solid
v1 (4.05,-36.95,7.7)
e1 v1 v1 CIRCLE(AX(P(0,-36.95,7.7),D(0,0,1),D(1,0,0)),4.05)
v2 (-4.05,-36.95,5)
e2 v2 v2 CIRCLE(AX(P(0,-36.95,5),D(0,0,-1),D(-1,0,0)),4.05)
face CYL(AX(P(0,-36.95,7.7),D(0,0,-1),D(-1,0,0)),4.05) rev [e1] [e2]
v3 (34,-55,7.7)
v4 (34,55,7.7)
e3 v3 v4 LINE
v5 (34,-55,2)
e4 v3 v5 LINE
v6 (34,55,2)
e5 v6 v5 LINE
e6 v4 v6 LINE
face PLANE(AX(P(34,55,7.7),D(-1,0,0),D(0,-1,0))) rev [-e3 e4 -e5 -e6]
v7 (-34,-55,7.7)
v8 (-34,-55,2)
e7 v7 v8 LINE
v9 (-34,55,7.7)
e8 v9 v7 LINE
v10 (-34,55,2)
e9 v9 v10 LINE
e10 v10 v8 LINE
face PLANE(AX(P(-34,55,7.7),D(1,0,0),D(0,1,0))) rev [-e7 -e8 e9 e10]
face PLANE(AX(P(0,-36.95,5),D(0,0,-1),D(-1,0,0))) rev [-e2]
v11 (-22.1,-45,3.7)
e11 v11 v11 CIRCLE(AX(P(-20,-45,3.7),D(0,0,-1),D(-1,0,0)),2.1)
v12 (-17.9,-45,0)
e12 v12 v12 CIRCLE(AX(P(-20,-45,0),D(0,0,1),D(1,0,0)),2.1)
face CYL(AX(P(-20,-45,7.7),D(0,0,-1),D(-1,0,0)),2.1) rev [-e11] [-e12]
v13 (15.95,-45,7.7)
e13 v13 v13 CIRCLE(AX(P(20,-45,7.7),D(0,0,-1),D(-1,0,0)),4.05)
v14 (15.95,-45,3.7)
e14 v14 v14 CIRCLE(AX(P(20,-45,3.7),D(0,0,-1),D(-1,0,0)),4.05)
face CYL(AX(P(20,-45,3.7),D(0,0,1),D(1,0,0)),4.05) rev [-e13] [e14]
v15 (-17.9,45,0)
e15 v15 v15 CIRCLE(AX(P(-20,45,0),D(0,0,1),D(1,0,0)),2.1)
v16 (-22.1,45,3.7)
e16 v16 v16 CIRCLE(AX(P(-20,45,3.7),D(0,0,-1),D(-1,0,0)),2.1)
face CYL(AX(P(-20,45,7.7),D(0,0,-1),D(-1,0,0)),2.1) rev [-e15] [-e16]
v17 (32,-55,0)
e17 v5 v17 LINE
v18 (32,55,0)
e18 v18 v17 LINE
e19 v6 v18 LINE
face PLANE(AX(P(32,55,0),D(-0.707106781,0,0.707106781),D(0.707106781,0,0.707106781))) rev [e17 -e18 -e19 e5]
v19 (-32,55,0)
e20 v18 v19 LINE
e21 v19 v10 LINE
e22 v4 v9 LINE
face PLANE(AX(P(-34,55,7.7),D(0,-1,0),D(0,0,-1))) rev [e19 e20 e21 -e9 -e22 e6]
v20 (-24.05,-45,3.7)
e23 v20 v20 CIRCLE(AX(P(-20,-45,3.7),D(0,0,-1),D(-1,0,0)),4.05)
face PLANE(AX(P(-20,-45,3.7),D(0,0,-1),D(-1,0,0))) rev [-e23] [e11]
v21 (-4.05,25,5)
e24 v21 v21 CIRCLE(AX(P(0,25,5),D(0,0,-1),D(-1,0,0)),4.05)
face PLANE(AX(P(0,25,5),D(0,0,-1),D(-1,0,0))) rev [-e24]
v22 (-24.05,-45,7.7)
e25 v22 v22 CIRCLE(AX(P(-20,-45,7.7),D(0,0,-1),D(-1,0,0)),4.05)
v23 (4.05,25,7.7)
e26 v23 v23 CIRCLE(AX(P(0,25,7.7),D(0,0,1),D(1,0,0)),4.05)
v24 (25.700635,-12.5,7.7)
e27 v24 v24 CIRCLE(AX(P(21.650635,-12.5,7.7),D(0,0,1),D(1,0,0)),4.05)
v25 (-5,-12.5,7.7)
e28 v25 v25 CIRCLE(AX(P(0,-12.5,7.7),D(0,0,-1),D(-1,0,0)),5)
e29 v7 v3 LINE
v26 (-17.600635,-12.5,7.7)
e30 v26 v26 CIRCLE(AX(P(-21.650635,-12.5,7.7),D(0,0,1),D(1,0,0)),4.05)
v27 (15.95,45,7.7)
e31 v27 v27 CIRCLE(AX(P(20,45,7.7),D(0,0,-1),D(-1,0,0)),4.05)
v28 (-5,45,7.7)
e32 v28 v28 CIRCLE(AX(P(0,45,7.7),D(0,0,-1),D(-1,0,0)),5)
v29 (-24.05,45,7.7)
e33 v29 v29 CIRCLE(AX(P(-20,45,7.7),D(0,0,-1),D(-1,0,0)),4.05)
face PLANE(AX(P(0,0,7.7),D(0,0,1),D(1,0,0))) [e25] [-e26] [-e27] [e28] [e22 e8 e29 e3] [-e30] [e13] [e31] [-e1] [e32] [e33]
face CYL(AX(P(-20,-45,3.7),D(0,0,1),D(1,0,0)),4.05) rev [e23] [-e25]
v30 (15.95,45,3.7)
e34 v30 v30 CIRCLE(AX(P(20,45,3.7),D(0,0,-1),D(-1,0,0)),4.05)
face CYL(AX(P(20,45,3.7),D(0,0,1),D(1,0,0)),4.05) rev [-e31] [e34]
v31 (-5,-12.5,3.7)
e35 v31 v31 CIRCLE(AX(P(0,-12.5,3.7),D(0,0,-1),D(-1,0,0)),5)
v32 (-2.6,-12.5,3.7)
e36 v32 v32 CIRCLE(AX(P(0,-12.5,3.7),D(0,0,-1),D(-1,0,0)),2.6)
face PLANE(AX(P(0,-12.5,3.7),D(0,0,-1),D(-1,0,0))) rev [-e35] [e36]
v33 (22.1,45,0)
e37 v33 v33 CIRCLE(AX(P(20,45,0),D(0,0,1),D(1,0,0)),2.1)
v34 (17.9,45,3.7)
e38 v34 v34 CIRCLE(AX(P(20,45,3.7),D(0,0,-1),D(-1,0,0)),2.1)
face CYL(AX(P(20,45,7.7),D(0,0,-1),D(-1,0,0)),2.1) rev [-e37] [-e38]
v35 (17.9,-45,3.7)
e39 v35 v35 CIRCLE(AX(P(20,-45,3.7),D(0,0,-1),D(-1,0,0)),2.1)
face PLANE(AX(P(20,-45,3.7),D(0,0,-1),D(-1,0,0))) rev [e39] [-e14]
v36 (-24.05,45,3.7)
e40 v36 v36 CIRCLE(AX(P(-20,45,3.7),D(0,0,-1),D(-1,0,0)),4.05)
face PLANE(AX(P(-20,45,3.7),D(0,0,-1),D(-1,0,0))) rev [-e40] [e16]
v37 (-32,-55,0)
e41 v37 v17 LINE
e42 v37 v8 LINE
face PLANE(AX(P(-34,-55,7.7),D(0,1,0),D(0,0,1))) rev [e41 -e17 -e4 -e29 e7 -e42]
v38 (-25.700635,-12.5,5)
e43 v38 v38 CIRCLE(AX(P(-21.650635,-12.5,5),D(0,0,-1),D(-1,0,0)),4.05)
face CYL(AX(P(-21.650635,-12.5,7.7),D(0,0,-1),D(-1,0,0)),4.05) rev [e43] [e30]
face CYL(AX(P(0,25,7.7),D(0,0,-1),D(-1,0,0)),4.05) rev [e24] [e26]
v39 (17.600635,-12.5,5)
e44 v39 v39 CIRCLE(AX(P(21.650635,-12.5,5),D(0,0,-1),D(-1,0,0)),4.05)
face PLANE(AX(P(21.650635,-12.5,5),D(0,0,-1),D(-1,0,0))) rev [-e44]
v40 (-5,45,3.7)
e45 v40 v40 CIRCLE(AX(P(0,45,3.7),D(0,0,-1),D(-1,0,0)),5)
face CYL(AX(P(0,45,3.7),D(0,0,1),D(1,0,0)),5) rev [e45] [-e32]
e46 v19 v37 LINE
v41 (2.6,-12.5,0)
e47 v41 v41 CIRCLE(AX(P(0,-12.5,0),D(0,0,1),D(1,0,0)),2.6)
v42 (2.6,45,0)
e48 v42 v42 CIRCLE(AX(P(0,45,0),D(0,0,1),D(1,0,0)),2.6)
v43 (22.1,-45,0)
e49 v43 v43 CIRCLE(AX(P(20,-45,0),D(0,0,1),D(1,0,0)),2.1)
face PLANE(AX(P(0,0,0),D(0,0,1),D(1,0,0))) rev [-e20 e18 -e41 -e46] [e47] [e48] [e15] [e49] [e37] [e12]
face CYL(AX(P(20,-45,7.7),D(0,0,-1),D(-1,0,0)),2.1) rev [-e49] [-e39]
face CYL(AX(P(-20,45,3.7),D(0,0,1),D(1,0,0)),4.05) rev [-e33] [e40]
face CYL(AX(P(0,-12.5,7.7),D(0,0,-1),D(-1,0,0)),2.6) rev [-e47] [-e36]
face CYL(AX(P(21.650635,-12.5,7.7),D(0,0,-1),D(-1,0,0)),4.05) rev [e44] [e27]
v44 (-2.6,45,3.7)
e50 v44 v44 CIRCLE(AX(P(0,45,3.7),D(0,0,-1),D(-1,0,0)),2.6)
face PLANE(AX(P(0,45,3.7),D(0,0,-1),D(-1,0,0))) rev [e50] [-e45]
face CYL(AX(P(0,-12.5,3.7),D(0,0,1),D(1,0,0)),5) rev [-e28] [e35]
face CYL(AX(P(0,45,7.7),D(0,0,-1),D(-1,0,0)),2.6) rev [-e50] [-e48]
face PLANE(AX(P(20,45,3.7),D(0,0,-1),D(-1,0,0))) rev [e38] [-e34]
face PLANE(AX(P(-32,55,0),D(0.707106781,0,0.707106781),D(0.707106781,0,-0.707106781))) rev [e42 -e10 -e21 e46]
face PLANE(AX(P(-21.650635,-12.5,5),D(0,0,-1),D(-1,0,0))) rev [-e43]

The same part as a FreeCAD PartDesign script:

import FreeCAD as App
import Part
import Sketcher
Q = App.Units.Quantity

doc = App.newDocument("Part")
body = doc.addObject("PartDesign::Body", "Body")

sketch1 = body.newObject("Sketcher::SketchObject", "Sketch")
sketch1.AttachmentSupport = (doc.getObject("XY_Plane"), [""])
sketch1.MapMode = "FlatFace"
sketch1.addGeometry([
    Part.LineSegment(App.Vector(-34, 55, 0), App.Vector(-34, -55, 0)),
    Part.LineSegment(App.Vector(-34, -55, 0), App.Vector(34, -55, 0)),
    Part.LineSegment(App.Vector(34, -55, 0), App.Vector(34, 55, 0)),
    Part.LineSegment(App.Vector(34, 55, 0), App.Vector(-34, 55, 0)),
    Part.Circle(App.Vector(-20, -45, 0), App.Vector(0, 0, 1), 2.1),
    Part.Circle(App.Vector(-21.7, -12.5, 0), App.Vector(0, 0, 1), 4),
    Part.Circle(App.Vector(0, -37, 0), App.Vector(0, 0, 1), 4),
    Part.Circle(App.Vector(20, -45, 0), App.Vector(0, 0, 1), 2.1),
    Part.Circle(App.Vector(0, -12.5, 0), App.Vector(0, 0, 1), 2.6),
    Part.Circle(App.Vector(21.7, -12.5, 0), App.Vector(0, 0, 1), 4),
    Part.Circle(App.Vector(-20, 45, 0), App.Vector(0, 0, 1), 2.1),
    Part.Circle(App.Vector(0, 25, 0), App.Vector(0, 0, 1), 4),
    Part.Circle(App.Vector(0, 45, 0), App.Vector(0, 0, 1), 2.6),
    Part.Circle(App.Vector(20, 45, 0), App.Vector(0, 0, 1), 2.1),
], False)
sketch1.addConstraint([
    Sketcher.Constraint("Coincident", 0, 2, 1, 1),
    Sketcher.Constraint("Coincident", 1, 2, 2, 1),
    Sketcher.Constraint("Coincident", 2, 2, 3, 1),
    Sketcher.Constraint("Coincident", 3, 2, 0, 1),
    Sketcher.Constraint("Vertical", 0),
    Sketcher.Constraint("Horizontal", 1),
    Sketcher.Constraint("Vertical", 2),
    Sketcher.Constraint("Horizontal", 3),
    Sketcher.Constraint("Equal", 5, 6),
    Sketcher.Constraint("Equal", 4, 7),
    Sketcher.Constraint("Equal", 6, 9),
    Sketcher.Constraint("Equal", 7, 10),
    Sketcher.Constraint("Equal", 9, 11),
    Sketcher.Constraint("Equal", 8, 12),
    Sketcher.Constraint("Equal", 10, 13),
    Sketcher.Constraint("Symmetric", 7, 3, 10, 3, -1, 1),
    Sketcher.Constraint("Symmetric", 4, 3, 13, 3, -1, 1),
    Sketcher.Constraint("Symmetric", 0, 2, 2, 2, -1, 1),
    Sketcher.Constraint("Symmetric", 4, 3, 7, 3, -2),
    Sketcher.Constraint("Symmetric", 5, 3, 9, 3, -2),
    Sketcher.Constraint("PointOnObject", 6, 3, -2),
    Sketcher.Constraint("PointOnObject", 8, 3, -2),
    Sketcher.Constraint("PointOnObject", 11, 3, -2),
    Sketcher.Constraint("PointOnObject", 12, 3, -2),
    Sketcher.Constraint("Horizontal", 5, 3, 8, 3),
    Sketcher.Constraint("Horizontal", 10, 3, 12, 3),
    Sketcher.Constraint("Diameter", 4, Q("4.2 mm")),
    Sketcher.Constraint("Diameter", 5, Q("8.1 mm")),
    Sketcher.Constraint("Diameter", 8, Q("5.2 mm")),
    Sketcher.Constraint("DistanceX", 1, 1, 1, 2, Q("68 mm")),
    Sketcher.Constraint("DistanceY", 0, 2, 0, 1, Q("110 mm")),
    Sketcher.Constraint("DistanceX", 4, 3, -1, 1, Q("20 mm")),
    Sketcher.Constraint("DistanceY", 4, 3, -1, 1, Q("45 mm")),
    Sketcher.Constraint("DistanceY", -1, 1, 11, 3, Q("25 mm")),
    Sketcher.Constraint("DistanceY", 5, 3, -1, 1, Q("12.5 mm")),
    Sketcher.Constraint("DistanceY", 6, 3, -1, 1, Q("36.95 mm")),
    Sketcher.Constraint("DistanceX", 5, 3, 9, 3, Q("43.30127 mm")),
])
pad1 = body.newObject("PartDesign::Pad", "Pad")
pad1.Profile = sketch1
pad1.Length = 7.7

sketch2 = body.newObject("Sketcher::SketchObject", "Sketch001")
sketch2.AttachmentSupport = (doc.getObject("XY_Plane"), [""])
sketch2.MapMode = "FlatFace"
sketch2.addGeometry([
    Part.Circle(App.Vector(22, -12, 0), App.Vector(0, 0, 1), 6),
    Part.Circle(App.Vector(0, 25, 0), App.Vector(0, 0, 1), 7),
    Part.Circle(App.Vector(-22, -12, 0), App.Vector(0, 0, 1), 8),
    Part.Circle(App.Vector(0, -37, 0), App.Vector(0, 0, 1), 11),
], False)
sketch2.addConstraint([
    Sketcher.Constraint("Symmetric", 0, 3, 2, 3, -2),
    Sketcher.Constraint("PointOnObject", 1, 3, -2),
    Sketcher.Constraint("PointOnObject", 3, 3, -2),
    Sketcher.Constraint("DistanceY", -1, 1, 1, 3, Q("25 mm")),
    Sketcher.Constraint("DistanceY", 0, 3, -1, 1, Q("12.5 mm")),
    Sketcher.Constraint("Diameter", 2, Q("16.228082 mm")),
    Sketcher.Constraint("DistanceY", 3, 3, -1, 1, Q("36.95 mm")),
    Sketcher.Constraint("Diameter", 0, Q("12.609266 mm")),
    Sketcher.Constraint("Diameter", 1, Q("14.668667 mm")),
    Sketcher.Constraint("Diameter", 3, Q("22.147313 mm")),
    Sketcher.Constraint("DistanceX", 2, 3, 0, 3, Q("43.30127 mm")),
])
pad2 = body.newObject("PartDesign::Pad", "Pad001")
pad2.Profile = sketch2
pad2.Length = 5

sketch3 = body.newObject("Sketcher::SketchObject", "Sketch002")
sketch3.AttachmentSupport = (doc.getObject("XY_Plane"), [""])
sketch3.MapMode = "FlatFace"
sketch3.AttachmentOffset = App.Placement(App.Vector(0, 0, 7.7), App.Rotation())
sketch3.addGeometry([
    Part.Circle(App.Vector(20, 45, 0), App.Vector(0, 0, 1), 4),
    Part.Circle(App.Vector(-20, 45, 0), App.Vector(0, 0, 1), 4),
    Part.Circle(App.Vector(20, -45, 0), App.Vector(0, 0, 1), 4),
    Part.Circle(App.Vector(-20, -45, 0), App.Vector(0, 0, 1), 4),
    Part.Circle(App.Vector(0, 45, 0), App.Vector(0, 0, 1), 5),
    Part.Circle(App.Vector(0, -12.5, 0), App.Vector(0, 0, 1), 5),
], False)
sketch3.addConstraint([
    Sketcher.Constraint("Equal", 0, 1),
    Sketcher.Constraint("Equal", 1, 2),
    Sketcher.Constraint("Equal", 2, 3),
    Sketcher.Constraint("Equal", 4, 5),
    Sketcher.Constraint("Symmetric", 1, 3, 2, 3, -1, 1),
    Sketcher.Constraint("Symmetric", 0, 3, 3, 3, -1, 1),
    Sketcher.Constraint("Symmetric", 0, 3, 1, 3, -2),
    Sketcher.Constraint("PointOnObject", 4, 3, -2),
    Sketcher.Constraint("PointOnObject", 5, 3, -2),
    Sketcher.Constraint("Horizontal", 1, 3, 4, 3),
    Sketcher.Constraint("Diameter", 4, Q("10 mm")),
    Sketcher.Constraint("Diameter", 0, Q("8.1 mm")),
    Sketcher.Constraint("DistanceX", -1, 1, 0, 3, Q("20 mm")),
    Sketcher.Constraint("DistanceY", -1, 1, 0, 3, Q("45 mm")),
    Sketcher.Constraint("DistanceY", 5, 3, -1, 1, Q("12.5 mm")),
])
pocket1 = body.newObject("PartDesign::Pocket", "Pocket")
pocket1.Profile = sketch3
pocket1.Length = 4

sketch4 = body.newObject("Sketcher::SketchObject", "Sketch003")
sketch4.AttachmentSupport = (doc.getObject("XZ_Plane"), [""])
sketch4.MapMode = "FlatFace"
sketch4.AttachmentOffset = App.Placement(App.Vector(0, 0, 55), App.Rotation())
sketch4.addGeometry([
    Part.LineSegment(App.Vector(34, 0, 0), App.Vector(34, 2, 0)),
    Part.LineSegment(App.Vector(34, 2, 0), App.Vector(32, 0, 0)),
    Part.LineSegment(App.Vector(32, 0, 0), App.Vector(34, 0, 0)),
    Part.LineSegment(App.Vector(-34, 15.4, 0), App.Vector(-39, 15.4, 0)),
    Part.LineSegment(App.Vector(-39, 15.4, 0), App.Vector(-39, 0, 0)),
    Part.LineSegment(App.Vector(-39, 0, 0), App.Vector(-32, 0, 0)),
    Part.LineSegment(App.Vector(-32, 0, 0), App.Vector(-34, 2, 0)),
    Part.LineSegment(App.Vector(-34, 2, 0), App.Vector(-34, 15.4, 0)),
], False)
sketch4.addConstraint([
    Sketcher.Constraint("Coincident", 0, 2, 1, 1),
    Sketcher.Constraint("Coincident", 1, 2, 2, 1),
    Sketcher.Constraint("Coincident", 2, 2, 0, 1),
    Sketcher.Constraint("Coincident", 3, 2, 4, 1),
    Sketcher.Constraint("Coincident", 4, 2, 5, 1),
    Sketcher.Constraint("Coincident", 5, 2, 6, 1),
    Sketcher.Constraint("Coincident", 6, 2, 7, 1),
    Sketcher.Constraint("Coincident", 7, 2, 3, 1),
    Sketcher.Constraint("Vertical", 0),
    Sketcher.Constraint("Horizontal", 2),
    Sketcher.Constraint("Horizontal", 3),
    Sketcher.Constraint("Vertical", 4),
    Sketcher.Constraint("Horizontal", 5),
    Sketcher.Constraint("Vertical", 7),
    Sketcher.Constraint("Symmetric", 1, 2, 5, 2, -1, 1),
    Sketcher.Constraint("Symmetric", 0, 2, 6, 2, -2),
    Sketcher.Constraint("PointOnObject", 1, 2, -1),
    Sketcher.Constraint("Perpendicular", 1, 6),
    Sketcher.Constraint("DistanceX", 2, 1, 2, 2, Q("2 mm")),
    Sketcher.Constraint("DistanceX", 3, 2, 3, 1, Q("5 mm")),
    Sketcher.Constraint("DistanceY", 4, 2, 4, 1, Q("15.4 mm")),
    Sketcher.Constraint("DistanceX", -1, 1, 0, 2, Q("34 mm")),
])
pocket2 = body.newObject("PartDesign::Pocket", "Pocket001")
pocket2.Profile = sketch4
pocket2.Type = "ThroughAll"

doc.recompute()
